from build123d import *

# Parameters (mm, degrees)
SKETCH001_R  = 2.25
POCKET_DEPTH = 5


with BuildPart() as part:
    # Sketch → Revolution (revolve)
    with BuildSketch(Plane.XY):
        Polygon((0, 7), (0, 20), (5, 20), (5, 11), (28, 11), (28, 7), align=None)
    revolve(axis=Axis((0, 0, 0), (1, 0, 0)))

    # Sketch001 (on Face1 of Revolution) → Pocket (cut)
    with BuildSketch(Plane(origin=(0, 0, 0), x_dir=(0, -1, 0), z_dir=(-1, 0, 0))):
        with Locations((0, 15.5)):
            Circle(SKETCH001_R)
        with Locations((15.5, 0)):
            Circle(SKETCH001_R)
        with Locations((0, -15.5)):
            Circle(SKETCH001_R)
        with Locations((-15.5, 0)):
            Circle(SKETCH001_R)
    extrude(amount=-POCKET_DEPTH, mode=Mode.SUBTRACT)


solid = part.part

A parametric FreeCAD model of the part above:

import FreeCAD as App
import Part
import Sketcher
from FreeCAD import Vector
Q = App.Units.Quantity

doc = App.newDocument("Part")
body = doc.addObject("PartDesign::Body", "Body")

# Sketch on XY plane
sketch1 = body.newObject("Sketcher::SketchObject", "Sketch")
sketch1.AttachmentSupport = (doc.getObject("XY_Plane"), [""])
sketch1.MapMode = "FlatFace"
sketch1.addGeometry(Part.LineSegment(Vector(0, 20, 0), Vector(0, 7, 0)), False)
sketch1.addGeometry(Part.LineSegment(Vector(0, 7, 0), Vector(28, 7, 0)), False)
sketch1.addGeometry(Part.LineSegment(Vector(28, 7, 0), Vector(28, 11, 0)), False)
sketch1.addGeometry(Part.LineSegment(Vector(28, 11, 0), Vector(5, 11, 0)), False)
sketch1.addGeometry(Part.LineSegment(Vector(5, 11, 0), Vector(5, 20, 0)), False)
sketch1.addGeometry(Part.LineSegment(Vector(5, 20, 0), Vector(0, 20, 0)), False)
sketch1.addConstraint(Sketcher.Constraint("Coincident", 0, 2, 1, 1))
sketch1.addConstraint(Sketcher.Constraint("Coincident", 1, 2, 2, 1))
sketch1.addConstraint(Sketcher.Constraint("Coincident", 2, 2, 3, 1))
sketch1.addConstraint(Sketcher.Constraint("Coincident", 3, 2, 4, 1))
sketch1.addConstraint(Sketcher.Constraint("Coincident", 4, 2, 5, 1))
sketch1.addConstraint(Sketcher.Constraint("Coincident", 5, 2, 0, 1))
sketch1.addConstraint(Sketcher.Constraint("Vertical", 0))
sketch1.addConstraint(Sketcher.Constraint("Horizontal", 1))
sketch1.addConstraint(Sketcher.Constraint("Vertical", 2))
sketch1.addConstraint(Sketcher.Constraint("Horizontal", 3))
sketch1.addConstraint(Sketcher.Constraint("Vertical", 4))
sketch1.addConstraint(Sketcher.Constraint("Horizontal", 5))
sketch1.addConstraint(Sketcher.Constraint("PointOnObject", 0, 2, -2))
sketch1.addConstraint(Sketcher.Constraint("DistanceX", 1, 1, 1, 2, Q("28 mm")))
sketch1.addConstraint(Sketcher.Constraint("DistanceX", 3, 2, 3, 1, Q("23 mm")))
sketch1.addConstraint(Sketcher.Constraint("DistanceY", 0, 2, 0, 1, Q("13 mm")))
sketch1.addConstraint(Sketcher.Constraint("DistanceY", 2, 1, 2, 2, Q("4 mm")))
sketch1.addConstraint(Sketcher.Constraint("DistanceY", -1, 1, 0, 2, Q("7 mm")))
revolution = body.newObject("PartDesign::Revolution", "Revolution")
revolution.Profile = sketch1
revolution.ReferenceAxis = (sketch1, ["H_Axis"])
revolution.Angle = 360

# Sketch on YZ plane
sketch2 = body.newObject("Sketcher::SketchObject", "Sketch001")
sketch2.AttachmentSupport = (doc.getObject("YZ_Plane"), [""])
sketch2.MapMode = "FlatFace"
sketch2.addGeometry(Part.Circle(Vector(0, 15.5, 0), Vector(0, 0, 1), 2.2), False)
sketch2.addGeometry(Part.Circle(Vector(-15.5, 0, 0), Vector(0, 0, 1), 2.2), False)
sketch2.addGeometry(Part.Circle(Vector(0, -15.5, 0), Vector(0, 0, 1), 2.2), False)
sketch2.addGeometry(Part.Circle(Vector(15.5, 0, 0), Vector(0, 0, 1), 2.2), False)
sketch2.addConstraint(Sketcher.Constraint("Equal", 0, 1))
sketch2.addConstraint(Sketcher.Constraint("Equal", 1, 2))
sketch2.addConstraint(Sketcher.Constraint("Equal", 2, 3))
sketch2.addConstraint(Sketcher.Constraint("Symmetric", 0, 3, 2, 3, -1, 1))
sketch2.addConstraint(Sketcher.Constraint("Symmetric", 1, 3, 3, 3, -1, 1))
sketch2.addConstraint(Sketcher.Constraint("PointOnObject", 0, 3, -2))
sketch2.addConstraint(Sketcher.Constraint("PointOnObject", 1, 3, -1))
sketch2.addConstraint(Sketcher.Constraint("Diameter", 0, Q("4.5 mm")))
sketch2.addConstraint(Sketcher.Constraint("DistanceY", 2, 3, 0, 3, Q("31 mm")))
sketch2.addConstraint(Sketcher.Constraint("DistanceX", 1, 3, 3, 3, Q("31 mm")))
pocket1 = body.newObject("PartDesign::Pocket", "Pocket")
pocket1.Profile = sketch2
pocket1.Length = 5
pocket1.Reversed = True

doc.recompute()
